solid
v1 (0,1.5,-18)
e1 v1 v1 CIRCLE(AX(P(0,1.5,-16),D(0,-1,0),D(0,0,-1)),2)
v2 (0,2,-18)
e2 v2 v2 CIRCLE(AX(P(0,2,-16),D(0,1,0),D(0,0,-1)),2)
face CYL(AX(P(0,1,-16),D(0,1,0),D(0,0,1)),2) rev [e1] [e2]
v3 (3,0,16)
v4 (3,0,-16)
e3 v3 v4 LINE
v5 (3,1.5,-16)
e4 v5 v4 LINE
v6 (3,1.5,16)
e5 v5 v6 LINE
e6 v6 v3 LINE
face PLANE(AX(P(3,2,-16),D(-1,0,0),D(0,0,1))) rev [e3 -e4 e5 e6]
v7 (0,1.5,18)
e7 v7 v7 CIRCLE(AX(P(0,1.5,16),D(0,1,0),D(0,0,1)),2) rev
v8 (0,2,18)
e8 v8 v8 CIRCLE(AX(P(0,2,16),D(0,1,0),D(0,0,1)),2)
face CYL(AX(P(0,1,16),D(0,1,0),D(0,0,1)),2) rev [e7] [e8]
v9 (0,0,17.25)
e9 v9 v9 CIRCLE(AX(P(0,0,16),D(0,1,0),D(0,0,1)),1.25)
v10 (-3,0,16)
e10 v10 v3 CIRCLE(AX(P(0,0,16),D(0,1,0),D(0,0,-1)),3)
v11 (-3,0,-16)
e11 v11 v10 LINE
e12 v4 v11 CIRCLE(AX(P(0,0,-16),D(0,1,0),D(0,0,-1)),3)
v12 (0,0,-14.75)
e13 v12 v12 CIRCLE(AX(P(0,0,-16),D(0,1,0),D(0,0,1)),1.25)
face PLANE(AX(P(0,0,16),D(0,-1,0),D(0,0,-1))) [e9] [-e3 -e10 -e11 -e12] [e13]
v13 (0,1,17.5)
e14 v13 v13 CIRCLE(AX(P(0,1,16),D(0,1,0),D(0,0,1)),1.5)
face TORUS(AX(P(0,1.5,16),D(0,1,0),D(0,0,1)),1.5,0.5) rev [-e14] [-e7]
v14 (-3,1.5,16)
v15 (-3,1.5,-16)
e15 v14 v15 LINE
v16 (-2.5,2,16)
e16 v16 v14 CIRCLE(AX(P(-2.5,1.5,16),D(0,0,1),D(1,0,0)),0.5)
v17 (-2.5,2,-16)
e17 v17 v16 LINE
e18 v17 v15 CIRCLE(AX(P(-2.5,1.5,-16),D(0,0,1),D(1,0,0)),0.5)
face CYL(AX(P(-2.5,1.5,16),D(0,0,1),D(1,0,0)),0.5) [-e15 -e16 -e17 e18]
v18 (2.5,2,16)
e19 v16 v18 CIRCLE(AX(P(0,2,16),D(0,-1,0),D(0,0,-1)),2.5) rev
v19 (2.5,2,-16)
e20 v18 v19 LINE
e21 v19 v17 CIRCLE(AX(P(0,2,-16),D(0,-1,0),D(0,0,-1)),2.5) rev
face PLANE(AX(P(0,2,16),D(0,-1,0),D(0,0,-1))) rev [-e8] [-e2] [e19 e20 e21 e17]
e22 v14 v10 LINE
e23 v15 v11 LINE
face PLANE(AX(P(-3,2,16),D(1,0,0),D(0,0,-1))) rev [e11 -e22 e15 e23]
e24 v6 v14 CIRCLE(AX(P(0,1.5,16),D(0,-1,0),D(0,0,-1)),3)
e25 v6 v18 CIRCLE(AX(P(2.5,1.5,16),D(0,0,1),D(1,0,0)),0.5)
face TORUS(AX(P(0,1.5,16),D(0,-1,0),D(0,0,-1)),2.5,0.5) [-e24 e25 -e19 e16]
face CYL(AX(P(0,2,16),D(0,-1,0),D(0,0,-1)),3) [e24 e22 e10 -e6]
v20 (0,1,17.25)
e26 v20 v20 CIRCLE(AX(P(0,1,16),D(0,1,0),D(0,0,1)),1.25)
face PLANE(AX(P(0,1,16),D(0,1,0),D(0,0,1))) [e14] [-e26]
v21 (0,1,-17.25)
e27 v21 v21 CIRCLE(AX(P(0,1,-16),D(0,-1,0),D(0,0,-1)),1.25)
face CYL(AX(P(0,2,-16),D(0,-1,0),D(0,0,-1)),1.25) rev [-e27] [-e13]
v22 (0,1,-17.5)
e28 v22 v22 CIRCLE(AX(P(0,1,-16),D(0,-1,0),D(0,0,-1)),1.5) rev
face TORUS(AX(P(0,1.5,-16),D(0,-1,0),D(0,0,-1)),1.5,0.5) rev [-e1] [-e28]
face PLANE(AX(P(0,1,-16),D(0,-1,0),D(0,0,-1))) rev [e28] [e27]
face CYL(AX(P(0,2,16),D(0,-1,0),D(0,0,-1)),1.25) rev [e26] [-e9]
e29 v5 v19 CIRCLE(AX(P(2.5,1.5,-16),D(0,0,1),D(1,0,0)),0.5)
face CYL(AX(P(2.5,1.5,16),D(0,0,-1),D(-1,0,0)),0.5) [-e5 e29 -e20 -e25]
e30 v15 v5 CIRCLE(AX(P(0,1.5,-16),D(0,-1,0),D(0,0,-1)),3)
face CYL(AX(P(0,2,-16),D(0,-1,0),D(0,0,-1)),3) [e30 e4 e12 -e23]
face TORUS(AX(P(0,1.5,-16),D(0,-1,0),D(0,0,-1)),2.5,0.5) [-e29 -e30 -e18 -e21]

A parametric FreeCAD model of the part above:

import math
import FreeCAD as App
import Part
import Sketcher

V = App.Vector


def edges_at(feature, points):
    """Names of the edges that pass closest to the given points."""
    edges = feature.Shape.Edges
    near = lambda p: min(range(len(edges)), key=lambda i: edges[i].distToShape(Part.Vertex(*p))[0])
    return sorted({f"Edge{near(p) + 1}" for p in points})

doc = App.newDocument("Part")
body = doc.addObject("PartDesign::Body", "Body")

sketch1 = body.newObject("Sketcher::SketchObject", "Sketch")
sketch1.AttachmentSupport = (doc.getObject("XZ_Plane"), [""])
sketch1.MapMode = "FlatFace"
sketch1.addGeometry([
    Part.LineSegment(V(-3, -16, 0), V(-3, 16, 0)),
    Part.ArcOfCircle(Part.Circle(V(0, 16, 0), V(0, 0, 1), 3), math.radians(0), math.radians(180)),
    Part.LineSegment(V(3, 16, 0), V(3, -16, 0)),
    Part.ArcOfCircle(Part.Circle(V(0, -16, 0), V(0, 0, 1), 3), math.radians(180), math.radians(360)),
    Part.Circle(V(0, 16, 0), V(0, 0, 1), 1.25),
    Part.Circle(V(0, -16, 0), V(0, 0, 1), 1.25),
], False)
sketch1.addConstraint([
    Sketcher.Constraint("Tangent", 0, 2, 1, 2),
    Sketcher.Constraint("Tangent", 1, 1, 2, 1),
    Sketcher.Constraint("Tangent", 2, 2, 3, 2),
    Sketcher.Constraint("Tangent", 3, 1, 0, 1),
    Sketcher.Constraint("Vertical", 0),
    Sketcher.Constraint("Vertical", 2),
    Sketcher.Constraint("Coincident", 4, 3, 1, 3),
    Sketcher.Constraint("Coincident", 5, 3, 3, 3),
    Sketcher.Constraint("Equal", 4, 5),
    Sketcher.Constraint("Symmetric", 1, 3, 3, 3, -1, 1),
    Sketcher.Constraint("Radius", 1, 3.0),
    Sketcher.Constraint("Diameter", 4, 2.5),
    Sketcher.Constraint("DistanceY", 0, 1, 0, 2, 32.0),
])
pad1 = body.newObject("PartDesign::Pad", "Pad")
pad1.Profile = sketch1
pad1.Length = 2
pad1.Reversed = True

sketch2 = body.newObject("Sketcher::SketchObject", "Sketch001")
sketch2.AttachmentSupport = (doc.getObject("XZ_Plane"), [""])
sketch2.MapMode = "FlatFace"
sketch2.AttachmentOffset = App.Placement(V(0, 0, -2), App.Rotation())
sketch2.addGeometry([
    Part.Circle(V(0, 16, 0), V(0, 0, 1), 2),
    Part.Circle(V(0, -16, 0), V(0, 0, 1), 2),
], False)
sketch2.addConstraint([
    Sketcher.Constraint("Equal", 0, 1),
    Sketcher.Constraint("Symmetric", 0, 3, 1, 3, -1, 1),
    Sketcher.Constraint("PointOnObject", 0, 3, -2),
    Sketcher.Constraint("Diameter", 0, 4.0),
    Sketcher.Constraint("DistanceY", -1, 1, 0, 3, 16.0),
])
pocket1 = body.newObject("PartDesign::Pocket", "Pocket")
pocket1.Profile = sketch2
pocket1.Length = 1
pocket1.Reversed = True
doc.recompute()

fillet = body.newObject("PartDesign::Fillet", "Fillet")
fillet.Base = (pocket1, edges_at(pocket1, [
    (0, 2, -19),
    (-3, 2, 0),
    (0, 1, 14),
    (0, 1, -14),
    (0, 2, 19),
    (3, 2, 0),
]))
fillet.Radius = 0.5

doc.recompute()
